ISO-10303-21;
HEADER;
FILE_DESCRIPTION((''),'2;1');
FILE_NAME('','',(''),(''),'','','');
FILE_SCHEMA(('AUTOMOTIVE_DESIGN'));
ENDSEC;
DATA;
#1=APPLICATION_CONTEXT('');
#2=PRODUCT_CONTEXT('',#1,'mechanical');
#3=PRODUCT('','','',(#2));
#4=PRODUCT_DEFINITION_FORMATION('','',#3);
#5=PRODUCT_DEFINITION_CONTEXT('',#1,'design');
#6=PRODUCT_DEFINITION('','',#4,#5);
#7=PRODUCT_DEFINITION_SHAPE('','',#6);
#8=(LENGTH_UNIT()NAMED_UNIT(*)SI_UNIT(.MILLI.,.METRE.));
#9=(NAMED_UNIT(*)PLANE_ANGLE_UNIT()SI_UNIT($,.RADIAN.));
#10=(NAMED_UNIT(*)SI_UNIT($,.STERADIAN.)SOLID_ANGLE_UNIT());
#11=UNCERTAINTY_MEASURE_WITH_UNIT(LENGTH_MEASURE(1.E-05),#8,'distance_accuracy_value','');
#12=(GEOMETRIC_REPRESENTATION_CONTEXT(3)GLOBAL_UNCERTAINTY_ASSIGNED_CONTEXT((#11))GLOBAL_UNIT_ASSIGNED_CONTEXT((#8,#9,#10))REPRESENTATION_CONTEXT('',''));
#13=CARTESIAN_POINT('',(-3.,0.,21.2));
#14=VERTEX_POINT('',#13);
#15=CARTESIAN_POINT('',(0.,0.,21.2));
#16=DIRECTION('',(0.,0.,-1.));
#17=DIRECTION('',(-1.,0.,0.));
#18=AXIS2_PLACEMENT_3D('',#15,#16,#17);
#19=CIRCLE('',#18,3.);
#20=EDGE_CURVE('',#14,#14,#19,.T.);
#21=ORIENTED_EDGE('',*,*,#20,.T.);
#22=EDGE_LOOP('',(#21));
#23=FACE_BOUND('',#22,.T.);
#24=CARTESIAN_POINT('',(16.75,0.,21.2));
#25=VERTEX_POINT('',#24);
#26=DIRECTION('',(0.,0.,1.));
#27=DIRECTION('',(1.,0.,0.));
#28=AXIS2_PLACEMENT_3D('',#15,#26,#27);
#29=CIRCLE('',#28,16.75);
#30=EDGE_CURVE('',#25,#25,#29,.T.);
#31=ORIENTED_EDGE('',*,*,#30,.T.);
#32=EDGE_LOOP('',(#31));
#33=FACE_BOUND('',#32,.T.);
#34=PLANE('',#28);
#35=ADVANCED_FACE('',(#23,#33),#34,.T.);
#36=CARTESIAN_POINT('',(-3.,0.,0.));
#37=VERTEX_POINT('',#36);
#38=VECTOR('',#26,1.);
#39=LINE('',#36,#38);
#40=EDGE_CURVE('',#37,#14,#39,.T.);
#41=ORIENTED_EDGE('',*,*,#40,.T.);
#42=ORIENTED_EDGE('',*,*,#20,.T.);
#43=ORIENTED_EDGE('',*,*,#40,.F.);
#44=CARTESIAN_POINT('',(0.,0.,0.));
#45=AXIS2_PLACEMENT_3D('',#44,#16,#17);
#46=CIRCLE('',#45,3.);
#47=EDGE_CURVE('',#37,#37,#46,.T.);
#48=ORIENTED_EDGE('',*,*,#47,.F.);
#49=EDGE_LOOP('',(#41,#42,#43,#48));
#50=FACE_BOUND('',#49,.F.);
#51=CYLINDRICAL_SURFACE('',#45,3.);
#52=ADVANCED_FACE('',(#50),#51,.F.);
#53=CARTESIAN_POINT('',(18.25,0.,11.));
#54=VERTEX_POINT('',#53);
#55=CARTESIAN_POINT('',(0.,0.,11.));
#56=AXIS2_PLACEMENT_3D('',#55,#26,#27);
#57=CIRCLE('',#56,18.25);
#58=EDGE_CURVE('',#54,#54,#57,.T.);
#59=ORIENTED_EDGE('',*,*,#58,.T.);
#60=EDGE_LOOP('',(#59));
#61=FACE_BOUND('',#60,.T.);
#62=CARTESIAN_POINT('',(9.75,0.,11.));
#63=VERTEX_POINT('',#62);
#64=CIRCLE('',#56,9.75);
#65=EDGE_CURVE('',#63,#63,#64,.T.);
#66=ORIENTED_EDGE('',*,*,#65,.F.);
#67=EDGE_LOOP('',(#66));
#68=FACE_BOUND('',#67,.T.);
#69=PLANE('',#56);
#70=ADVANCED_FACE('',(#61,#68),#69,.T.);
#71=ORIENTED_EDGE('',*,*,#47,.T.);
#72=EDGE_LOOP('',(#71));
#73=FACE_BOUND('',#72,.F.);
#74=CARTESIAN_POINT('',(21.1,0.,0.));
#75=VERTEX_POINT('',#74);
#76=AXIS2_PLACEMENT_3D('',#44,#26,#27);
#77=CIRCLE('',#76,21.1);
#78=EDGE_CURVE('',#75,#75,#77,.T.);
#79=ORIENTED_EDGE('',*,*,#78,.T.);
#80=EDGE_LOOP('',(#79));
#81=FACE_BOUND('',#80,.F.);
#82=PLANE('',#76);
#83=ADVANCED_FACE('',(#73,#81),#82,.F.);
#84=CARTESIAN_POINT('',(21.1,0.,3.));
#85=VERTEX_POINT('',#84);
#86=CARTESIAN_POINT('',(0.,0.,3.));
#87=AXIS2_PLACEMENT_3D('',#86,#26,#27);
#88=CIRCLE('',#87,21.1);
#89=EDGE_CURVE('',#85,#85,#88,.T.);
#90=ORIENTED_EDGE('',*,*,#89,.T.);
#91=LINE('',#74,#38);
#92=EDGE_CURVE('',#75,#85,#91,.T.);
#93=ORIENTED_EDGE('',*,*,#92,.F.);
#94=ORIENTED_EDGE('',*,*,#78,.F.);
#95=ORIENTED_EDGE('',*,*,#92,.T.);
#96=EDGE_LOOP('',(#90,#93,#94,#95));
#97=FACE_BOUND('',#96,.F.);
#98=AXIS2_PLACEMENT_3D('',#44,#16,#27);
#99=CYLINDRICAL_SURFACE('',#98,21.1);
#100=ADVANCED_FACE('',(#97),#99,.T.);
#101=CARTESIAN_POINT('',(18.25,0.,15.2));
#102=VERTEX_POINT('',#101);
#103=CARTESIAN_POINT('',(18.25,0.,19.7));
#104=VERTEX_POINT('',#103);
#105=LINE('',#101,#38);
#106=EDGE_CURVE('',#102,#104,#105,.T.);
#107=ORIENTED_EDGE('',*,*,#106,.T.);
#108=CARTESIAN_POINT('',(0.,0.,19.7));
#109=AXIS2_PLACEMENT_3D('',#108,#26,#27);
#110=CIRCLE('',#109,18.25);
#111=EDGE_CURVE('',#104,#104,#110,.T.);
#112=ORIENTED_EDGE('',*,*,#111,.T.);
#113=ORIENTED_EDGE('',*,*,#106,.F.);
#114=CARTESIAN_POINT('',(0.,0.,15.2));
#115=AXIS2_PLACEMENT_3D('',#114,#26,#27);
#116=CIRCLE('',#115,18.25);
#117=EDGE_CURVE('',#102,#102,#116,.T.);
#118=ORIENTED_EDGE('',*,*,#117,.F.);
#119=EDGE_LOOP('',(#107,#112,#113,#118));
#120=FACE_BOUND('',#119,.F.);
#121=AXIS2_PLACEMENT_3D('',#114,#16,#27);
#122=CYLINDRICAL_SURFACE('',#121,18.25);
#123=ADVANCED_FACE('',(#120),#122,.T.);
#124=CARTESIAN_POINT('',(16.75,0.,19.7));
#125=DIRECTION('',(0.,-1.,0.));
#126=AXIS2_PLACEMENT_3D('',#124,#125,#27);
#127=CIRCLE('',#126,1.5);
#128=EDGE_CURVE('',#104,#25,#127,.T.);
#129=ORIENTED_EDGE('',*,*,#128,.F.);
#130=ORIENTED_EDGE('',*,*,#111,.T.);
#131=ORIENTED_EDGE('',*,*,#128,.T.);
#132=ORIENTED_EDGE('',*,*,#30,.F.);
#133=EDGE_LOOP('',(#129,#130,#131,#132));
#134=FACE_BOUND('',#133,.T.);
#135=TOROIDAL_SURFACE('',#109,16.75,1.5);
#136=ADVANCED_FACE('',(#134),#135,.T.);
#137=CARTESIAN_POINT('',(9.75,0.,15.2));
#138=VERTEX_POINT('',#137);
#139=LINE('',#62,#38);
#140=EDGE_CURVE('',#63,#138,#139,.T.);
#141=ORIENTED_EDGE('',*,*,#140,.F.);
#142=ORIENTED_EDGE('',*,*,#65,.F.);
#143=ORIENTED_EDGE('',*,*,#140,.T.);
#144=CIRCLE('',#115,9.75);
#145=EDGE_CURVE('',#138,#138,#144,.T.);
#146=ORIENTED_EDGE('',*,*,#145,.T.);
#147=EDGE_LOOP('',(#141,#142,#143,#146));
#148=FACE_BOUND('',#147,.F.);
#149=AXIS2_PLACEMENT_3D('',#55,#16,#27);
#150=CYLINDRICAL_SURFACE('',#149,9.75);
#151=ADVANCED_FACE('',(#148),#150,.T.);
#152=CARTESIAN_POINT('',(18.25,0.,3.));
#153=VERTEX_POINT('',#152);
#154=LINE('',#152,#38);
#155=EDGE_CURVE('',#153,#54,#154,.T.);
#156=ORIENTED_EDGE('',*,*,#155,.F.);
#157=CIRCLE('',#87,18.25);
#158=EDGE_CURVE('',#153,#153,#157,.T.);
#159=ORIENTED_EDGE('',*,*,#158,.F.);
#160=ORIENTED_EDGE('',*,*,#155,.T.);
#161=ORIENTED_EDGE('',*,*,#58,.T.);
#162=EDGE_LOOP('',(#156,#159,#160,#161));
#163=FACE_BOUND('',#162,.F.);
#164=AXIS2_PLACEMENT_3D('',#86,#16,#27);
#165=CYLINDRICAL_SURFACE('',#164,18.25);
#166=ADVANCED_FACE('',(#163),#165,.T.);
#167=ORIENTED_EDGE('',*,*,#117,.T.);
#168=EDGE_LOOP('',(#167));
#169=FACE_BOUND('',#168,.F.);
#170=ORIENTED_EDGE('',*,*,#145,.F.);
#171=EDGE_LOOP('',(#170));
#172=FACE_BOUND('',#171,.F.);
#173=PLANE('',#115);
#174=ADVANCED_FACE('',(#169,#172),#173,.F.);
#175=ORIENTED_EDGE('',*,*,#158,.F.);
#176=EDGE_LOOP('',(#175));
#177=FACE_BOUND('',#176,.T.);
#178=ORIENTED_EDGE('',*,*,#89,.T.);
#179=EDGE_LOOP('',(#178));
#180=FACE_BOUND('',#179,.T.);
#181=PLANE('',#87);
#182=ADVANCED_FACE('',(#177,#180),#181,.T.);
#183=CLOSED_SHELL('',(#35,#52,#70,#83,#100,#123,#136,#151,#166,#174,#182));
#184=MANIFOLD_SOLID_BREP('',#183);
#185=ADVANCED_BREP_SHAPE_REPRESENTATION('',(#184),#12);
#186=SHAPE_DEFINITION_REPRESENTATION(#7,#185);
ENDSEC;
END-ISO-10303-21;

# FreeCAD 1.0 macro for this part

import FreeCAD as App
import Part
import Sketcher
from FreeCAD import Vector


def edges_at(feature, points):
    """Names of the edges that pass closest to the given points."""
    edges = feature.Shape.Edges
    near = lambda p: min(range(len(edges)), key=lambda i: edges[i].distToShape(Part.Vertex(*p))[0])
    return sorted({f"Edge{near(p) + 1}" for p in points})

doc = App.newDocument("Part")
body = doc.addObject("PartDesign::Body", "Body")

# Sketch on XY plane
sketch1 = doc.addObject("Sketcher::SketchObject", "Sketch")
body.addObject(sketch1)
sketch1.AttachmentSupport = (doc.XY_Plane, [""])
sketch1.MapMode = "FlatFace"
sketch1.addGeometry(Part.Circle(Vector(0, 0, 0), Vector(0, 0, 1), 21), False)
sketch1.addConstraint([
    Sketcher.Constraint("Coincident", 0, 3, -1, 1),
    Sketcher.Constraint("Diameter", 0, 42.2),
])
pad1 = doc.addObject("PartDesign::Pad", "Pad")
body.addObject(pad1)
pad1.Profile = sketch1
pad1.Length = 3

# Sketch on XY plane
sketch2 = doc.addObject("Sketcher::SketchObject", "Sketch001")
body.addObject(sketch2)
sketch2.AttachmentSupport = (doc.XY_Plane, [""])
sketch2.MapMode = "FlatFace"
sketch2.AttachmentOffset = App.Placement(Vector(0, 0, 3), App.Rotation())
sketch2.addGeometry(Part.Circle(Vector(0, 0, 0), Vector(0, 0, 1), 18), False)
sketch2.addConstraint([
    Sketcher.Constraint("Coincident", 0, 3, -1, 1),
    Sketcher.Constraint("Diameter", 0, 36.5),
])
pad2 = doc.addObject("PartDesign::Pad", "Pad001")
body.addObject(pad2)
pad2.Profile = sketch2
pad2.Length = 8

# Sketch on XY plane
sketch3 = doc.addObject("Sketcher::SketchObject", "Sketch002")
body.addObject(sketch3)
sketch3.AttachmentSupport = (doc.XY_Plane, [""])
sketch3.MapMode = "FlatFace"
sketch3.AttachmentOffset = App.Placement(Vector(0, 0, 11), App.Rotation())
sketch3.addGeometry(Part.Circle(Vector(0, 0, 0), Vector(0, 0, 1), 10), False)
sketch3.addConstraint([
    Sketcher.Constraint("Coincident", 0, 3, -1, 1),
    Sketcher.Constraint("Diameter", 0, 19.5),
])
pad3 = doc.addObject("PartDesign::Pad", "Pad002")
body.addObject(pad3)
pad3.Profile = sketch3
pad3.Length = 4.2

# Sketch on XY plane
sketch4 = doc.addObject("Sketcher::SketchObject", "Sketch003")
body.addObject(sketch4)
sketch4.AttachmentSupport = (doc.XY_Plane, [""])
sketch4.MapMode = "FlatFace"
sketch4.AttachmentOffset = App.Placement(Vector(0, 0, 15.2), App.Rotation())
sketch4.addGeometry(Part.Circle(Vector(0, 0, 0), Vector(0, 0, 1), 18), False)
sketch4.addConstraint([
    Sketcher.Constraint("Coincident", 0, 3, -1, 1),
    Sketcher.Constraint("Diameter", 0, 36.5),
])
pad4 = doc.addObject("PartDesign::Pad", "Pad003")
body.addObject(pad4)
pad4.Profile = sketch4
pad4.Length = 6
doc.recompute()

fillet = doc.addObject("PartDesign::Fillet", "Fillet")
body.addObject(fillet)
fillet.Base = (pad4, edges_at(pad4, [(-18.25, 0, 21.2)]))
fillet.Radius = 1.5

# Sketch on XY plane
sketch5 = doc.addObject("Sketcher::SketchObject", "Sketch004")
body.addObject(sketch5)
sketch5.AttachmentSupport = (doc.XY_Plane, [""])
sketch5.MapMode = "FlatFace"
sketch5.addGeometry(Part.Circle(Vector(0, 0, 0), Vector(0, 0, 1), 3), False)
sketch5.addConstraint([
    Sketcher.Constraint("Coincident", 0, 3, -1, 1),
    Sketcher.Constraint("Diameter", 0, 6.0),
])
pocket1 = doc.addObject("PartDesign::Pocket", "Pocket")
body.addObject(pocket1)
pocket1.Profile = sketch5
pocket1.Length = 100
pocket1.Reversed = True

doc.recompute()
